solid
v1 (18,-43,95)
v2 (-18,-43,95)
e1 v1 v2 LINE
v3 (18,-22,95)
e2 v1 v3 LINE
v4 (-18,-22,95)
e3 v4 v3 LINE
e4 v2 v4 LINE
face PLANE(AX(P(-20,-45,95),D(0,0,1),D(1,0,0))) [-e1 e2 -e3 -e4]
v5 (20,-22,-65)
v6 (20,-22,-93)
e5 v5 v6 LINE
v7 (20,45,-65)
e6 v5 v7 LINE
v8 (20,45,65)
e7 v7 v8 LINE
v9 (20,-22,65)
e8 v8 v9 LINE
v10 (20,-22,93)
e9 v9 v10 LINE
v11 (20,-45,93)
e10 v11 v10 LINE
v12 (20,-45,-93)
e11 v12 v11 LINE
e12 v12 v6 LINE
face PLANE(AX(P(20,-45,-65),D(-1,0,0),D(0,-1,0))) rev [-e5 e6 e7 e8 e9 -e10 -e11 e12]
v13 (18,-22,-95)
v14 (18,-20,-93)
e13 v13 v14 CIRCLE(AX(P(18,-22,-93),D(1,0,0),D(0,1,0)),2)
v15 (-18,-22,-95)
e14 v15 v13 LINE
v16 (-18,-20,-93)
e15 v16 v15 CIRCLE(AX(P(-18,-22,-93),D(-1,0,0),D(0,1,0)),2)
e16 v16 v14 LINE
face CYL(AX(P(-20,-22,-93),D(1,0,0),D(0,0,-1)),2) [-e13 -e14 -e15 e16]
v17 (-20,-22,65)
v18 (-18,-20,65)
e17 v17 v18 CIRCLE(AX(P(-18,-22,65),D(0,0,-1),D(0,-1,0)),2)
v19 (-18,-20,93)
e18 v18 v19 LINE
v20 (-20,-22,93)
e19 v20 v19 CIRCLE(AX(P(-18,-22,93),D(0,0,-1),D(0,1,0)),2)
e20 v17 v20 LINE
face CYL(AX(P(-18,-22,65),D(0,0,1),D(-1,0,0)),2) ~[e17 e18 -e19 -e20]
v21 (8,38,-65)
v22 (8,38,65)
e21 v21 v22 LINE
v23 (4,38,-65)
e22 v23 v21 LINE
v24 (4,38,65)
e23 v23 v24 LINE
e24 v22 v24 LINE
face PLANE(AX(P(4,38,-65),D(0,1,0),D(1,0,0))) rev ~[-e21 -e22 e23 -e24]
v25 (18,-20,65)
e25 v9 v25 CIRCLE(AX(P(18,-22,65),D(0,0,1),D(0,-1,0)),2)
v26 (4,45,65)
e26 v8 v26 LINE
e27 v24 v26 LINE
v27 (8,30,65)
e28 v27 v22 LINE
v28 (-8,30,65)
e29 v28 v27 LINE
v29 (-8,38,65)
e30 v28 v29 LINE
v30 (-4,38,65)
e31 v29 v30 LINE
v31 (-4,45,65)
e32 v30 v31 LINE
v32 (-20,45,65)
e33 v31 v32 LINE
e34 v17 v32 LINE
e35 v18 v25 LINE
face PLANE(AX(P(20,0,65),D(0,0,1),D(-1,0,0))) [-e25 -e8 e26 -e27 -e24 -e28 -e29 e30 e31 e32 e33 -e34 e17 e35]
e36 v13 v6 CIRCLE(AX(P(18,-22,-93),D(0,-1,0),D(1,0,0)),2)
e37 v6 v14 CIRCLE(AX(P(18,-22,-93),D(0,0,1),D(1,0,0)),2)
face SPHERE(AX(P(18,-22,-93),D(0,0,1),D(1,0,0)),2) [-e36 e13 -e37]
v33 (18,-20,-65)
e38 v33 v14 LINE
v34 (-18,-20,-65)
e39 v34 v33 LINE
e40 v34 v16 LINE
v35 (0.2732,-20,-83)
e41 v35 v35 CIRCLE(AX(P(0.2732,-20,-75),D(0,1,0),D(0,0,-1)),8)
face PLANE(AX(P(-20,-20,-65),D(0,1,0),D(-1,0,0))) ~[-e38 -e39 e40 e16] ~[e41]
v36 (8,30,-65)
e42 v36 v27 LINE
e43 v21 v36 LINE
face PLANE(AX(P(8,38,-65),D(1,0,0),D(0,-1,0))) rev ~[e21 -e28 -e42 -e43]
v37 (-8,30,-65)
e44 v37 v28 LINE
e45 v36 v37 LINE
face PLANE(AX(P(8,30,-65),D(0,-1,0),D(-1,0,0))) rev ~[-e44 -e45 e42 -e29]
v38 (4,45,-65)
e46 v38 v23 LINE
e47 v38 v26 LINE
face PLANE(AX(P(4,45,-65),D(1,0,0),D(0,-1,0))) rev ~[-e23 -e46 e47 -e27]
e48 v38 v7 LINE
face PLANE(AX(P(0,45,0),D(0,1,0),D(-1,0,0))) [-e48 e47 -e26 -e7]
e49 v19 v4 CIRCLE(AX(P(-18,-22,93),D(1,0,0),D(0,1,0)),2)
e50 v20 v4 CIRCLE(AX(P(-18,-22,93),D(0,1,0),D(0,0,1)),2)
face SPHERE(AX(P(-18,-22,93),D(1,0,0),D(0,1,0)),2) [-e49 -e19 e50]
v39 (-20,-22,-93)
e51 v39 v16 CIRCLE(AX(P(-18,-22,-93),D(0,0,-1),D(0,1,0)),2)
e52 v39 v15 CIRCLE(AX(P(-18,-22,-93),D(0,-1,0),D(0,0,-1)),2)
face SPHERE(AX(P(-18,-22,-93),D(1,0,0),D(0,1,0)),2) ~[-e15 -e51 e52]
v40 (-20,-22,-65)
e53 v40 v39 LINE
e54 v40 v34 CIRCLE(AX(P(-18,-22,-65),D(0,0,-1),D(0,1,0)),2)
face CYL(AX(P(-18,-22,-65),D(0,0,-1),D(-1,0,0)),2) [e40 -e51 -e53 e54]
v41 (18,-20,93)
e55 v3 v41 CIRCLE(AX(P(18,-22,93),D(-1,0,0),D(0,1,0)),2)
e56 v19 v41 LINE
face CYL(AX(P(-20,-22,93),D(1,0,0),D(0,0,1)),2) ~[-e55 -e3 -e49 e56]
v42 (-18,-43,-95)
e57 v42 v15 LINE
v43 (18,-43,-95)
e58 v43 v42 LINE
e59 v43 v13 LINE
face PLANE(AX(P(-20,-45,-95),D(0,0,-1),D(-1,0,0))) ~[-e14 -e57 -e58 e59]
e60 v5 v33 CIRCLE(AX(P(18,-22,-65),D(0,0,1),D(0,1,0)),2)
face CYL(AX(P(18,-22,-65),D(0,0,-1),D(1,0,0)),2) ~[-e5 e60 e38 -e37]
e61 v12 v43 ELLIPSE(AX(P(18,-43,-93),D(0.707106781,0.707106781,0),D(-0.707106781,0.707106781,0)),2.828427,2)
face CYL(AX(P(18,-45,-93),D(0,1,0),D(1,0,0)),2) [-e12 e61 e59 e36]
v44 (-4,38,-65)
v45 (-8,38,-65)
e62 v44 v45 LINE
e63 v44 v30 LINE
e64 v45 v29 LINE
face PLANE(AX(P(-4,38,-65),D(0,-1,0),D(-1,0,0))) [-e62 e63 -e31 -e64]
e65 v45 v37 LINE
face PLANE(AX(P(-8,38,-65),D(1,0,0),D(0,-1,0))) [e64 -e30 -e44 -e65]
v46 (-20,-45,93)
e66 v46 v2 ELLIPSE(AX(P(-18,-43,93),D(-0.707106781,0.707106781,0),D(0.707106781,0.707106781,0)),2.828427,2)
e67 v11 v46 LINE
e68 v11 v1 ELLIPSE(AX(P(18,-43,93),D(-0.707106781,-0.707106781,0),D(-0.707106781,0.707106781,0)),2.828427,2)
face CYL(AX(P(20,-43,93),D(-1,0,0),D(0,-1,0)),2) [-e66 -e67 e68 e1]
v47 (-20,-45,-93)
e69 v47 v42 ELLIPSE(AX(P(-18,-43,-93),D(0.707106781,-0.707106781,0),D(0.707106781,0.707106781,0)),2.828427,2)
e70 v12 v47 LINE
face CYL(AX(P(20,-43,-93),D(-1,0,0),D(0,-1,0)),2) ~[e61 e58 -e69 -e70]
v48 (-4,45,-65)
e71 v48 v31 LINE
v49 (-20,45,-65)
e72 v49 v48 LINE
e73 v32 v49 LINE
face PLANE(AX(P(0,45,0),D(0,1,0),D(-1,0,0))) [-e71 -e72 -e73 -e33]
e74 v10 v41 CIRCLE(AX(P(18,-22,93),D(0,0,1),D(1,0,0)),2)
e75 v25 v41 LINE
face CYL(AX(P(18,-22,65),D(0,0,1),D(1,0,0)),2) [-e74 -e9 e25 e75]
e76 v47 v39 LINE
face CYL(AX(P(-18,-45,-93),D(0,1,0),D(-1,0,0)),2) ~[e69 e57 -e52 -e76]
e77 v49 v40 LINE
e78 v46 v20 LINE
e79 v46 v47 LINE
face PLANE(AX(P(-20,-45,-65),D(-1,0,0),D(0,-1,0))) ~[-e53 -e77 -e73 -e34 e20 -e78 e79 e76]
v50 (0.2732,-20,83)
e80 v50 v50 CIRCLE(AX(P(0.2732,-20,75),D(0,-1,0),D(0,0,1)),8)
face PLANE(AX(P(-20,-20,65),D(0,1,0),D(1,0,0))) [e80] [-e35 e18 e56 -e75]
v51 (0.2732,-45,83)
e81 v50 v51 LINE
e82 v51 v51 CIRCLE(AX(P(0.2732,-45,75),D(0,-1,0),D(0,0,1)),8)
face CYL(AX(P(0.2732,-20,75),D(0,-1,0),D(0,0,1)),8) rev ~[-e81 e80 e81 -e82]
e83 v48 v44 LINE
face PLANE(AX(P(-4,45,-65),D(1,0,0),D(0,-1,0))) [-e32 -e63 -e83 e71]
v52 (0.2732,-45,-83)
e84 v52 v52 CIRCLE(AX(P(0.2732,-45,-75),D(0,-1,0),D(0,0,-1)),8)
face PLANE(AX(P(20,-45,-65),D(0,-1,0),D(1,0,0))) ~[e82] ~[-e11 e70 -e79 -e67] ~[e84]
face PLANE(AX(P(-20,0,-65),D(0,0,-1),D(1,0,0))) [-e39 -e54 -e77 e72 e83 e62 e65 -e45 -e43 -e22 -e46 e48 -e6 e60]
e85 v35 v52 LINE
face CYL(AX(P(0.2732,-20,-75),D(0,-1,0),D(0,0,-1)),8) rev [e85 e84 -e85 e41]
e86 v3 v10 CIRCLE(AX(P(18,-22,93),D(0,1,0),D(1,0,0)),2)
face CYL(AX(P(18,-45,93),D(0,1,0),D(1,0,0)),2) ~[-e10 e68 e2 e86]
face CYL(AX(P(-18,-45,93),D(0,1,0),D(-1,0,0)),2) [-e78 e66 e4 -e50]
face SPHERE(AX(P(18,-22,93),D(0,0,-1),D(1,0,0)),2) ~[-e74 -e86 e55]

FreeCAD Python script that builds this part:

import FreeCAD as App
import Part
import Sketcher
from FreeCAD import Vector
Q = App.Units.Quantity


def edges_at(feature, points):
    """Names of the edges that pass closest to the given points."""
    edges = feature.Shape.Edges
    near = lambda p: min(range(len(edges)), key=lambda i: edges[i].distToShape(Part.Vertex(*p))[0])
    return sorted({f"Edge{near(p) + 1}" for p in points})

doc = App.newDocument("Part")
body = doc.addObject("PartDesign::Body", "Body")

sketch1 = doc.addObject("Sketcher::SketchObject", "Sketch")
body.addObject(sketch1)
sketch1.AttachmentSupport = (doc.XZ_Plane, [""])
sketch1.MapMode = "FlatFace"
sketch1.addGeometry(Part.LineSegment(Vector(-20, 65, 0), Vector(20, 65, 0)), False)
sketch1.addGeometry(Part.LineSegment(Vector(20, 65, 0), Vector(20, -65, 0)), False)
sketch1.addGeometry(Part.LineSegment(Vector(20, -65, 0), Vector(-20, -65, 0)), False)
sketch1.addGeometry(Part.LineSegment(Vector(-20, -65, 0), Vector(-20, 65, 0)), False)
sketch1.addConstraint(Sketcher.Constraint("Coincident", 0, 2, 1, 1))
sketch1.addConstraint(Sketcher.Constraint("Coincident", 1, 2, 2, 1))
sketch1.addConstraint(Sketcher.Constraint("Coincident", 2, 2, 3, 1))
sketch1.addConstraint(Sketcher.Constraint("Coincident", 3, 2, 0, 1))
sketch1.addConstraint(Sketcher.Constraint("Horizontal", 0))
sketch1.addConstraint(Sketcher.Constraint("Vertical", 1))
sketch1.addConstraint(Sketcher.Constraint("Horizontal", 2))
sketch1.addConstraint(Sketcher.Constraint("Vertical", 3))
sketch1.addConstraint(Sketcher.Constraint("Symmetric", 0, 2, 2, 2, -1, 1))
sketch1.addConstraint(Sketcher.Constraint("DistanceX", 0, 1, 0, 2, Q("40 mm")))
sketch1.addConstraint(Sketcher.Constraint("DistanceY", 1, 2, 1, 1, Q("130 mm")))
pad1 = doc.addObject("PartDesign::Pad", "Pad")
body.addObject(pad1)
pad1.Profile = sketch1
pad1.Length = 90
pad1.Midplane = True

sketch2 = doc.addObject("Sketcher::SketchObject", "Sketch001")
body.addObject(sketch2)
sketch2.AttachmentSupport = (doc.XY_Plane, [""])
sketch2.MapMode = "FlatFace"
sketch2.AttachmentOffset = App.Placement(Vector(0, 0, -65), App.Rotation())
sketch2.addGeometry(Part.LineSegment(Vector(4, 45, 0), Vector(4, 38, 0)), False)
sketch2.addGeometry(Part.LineSegment(Vector(4, 38, 0), Vector(8, 38, 0)), False)
sketch2.addGeometry(Part.LineSegment(Vector(8, 38, 0), Vector(8, 30, 0)), False)
sketch2.addGeometry(Part.LineSegment(Vector(8, 30, 0), Vector(-8, 30, 0)), False)
sketch2.addGeometry(Part.LineSegment(Vector(-8, 30, 0), Vector(-8, 38, 0)), False)
sketch2.addGeometry(Part.LineSegment(Vector(-8, 38, 0), Vector(-4, 38, 0)), False)
sketch2.addGeometry(Part.LineSegment(Vector(-4, 38, 0), Vector(-4, 45, 0)), False)
sketch2.addGeometry(Part.LineSegment(Vector(-4, 45, 0), Vector(4, 45, 0)), False)
sketch2.addConstraint(Sketcher.Constraint("Coincident", 0, 2, 1, 1))
sketch2.addConstraint(Sketcher.Constraint("Coincident", 1, 2, 2, 1))
sketch2.addConstraint(Sketcher.Constraint("Coincident", 2, 2, 3, 1))
sketch2.addConstraint(Sketcher.Constraint("Coincident", 3, 2, 4, 1))
sketch2.addConstraint(Sketcher.Constraint("Coincident", 4, 2, 5, 1))
sketch2.addConstraint(Sketcher.Constraint("Coincident", 5, 2, 6, 1))
sketch2.addConstraint(Sketcher.Constraint("Coincident", 6, 2, 7, 1))
sketch2.addConstraint(Sketcher.Constraint("Coincident", 7, 2, 0, 1))
sketch2.addConstraint(Sketcher.Constraint("Vertical", 0))
sketch2.addConstraint(Sketcher.Constraint("Horizontal", 1))
sketch2.addConstraint(Sketcher.Constraint("Vertical", 2))
sketch2.addConstraint(Sketcher.Constraint("Horizontal", 3))
sketch2.addConstraint(Sketcher.Constraint("Vertical", 4))
sketch2.addConstraint(Sketcher.Constraint("Horizontal", 5))
sketch2.addConstraint(Sketcher.Constraint("Vertical", 6))
sketch2.addConstraint(Sketcher.Constraint("Horizontal", 7))
sketch2.addConstraint(Sketcher.Constraint("Symmetric", 1, 2, 4, 2, -2))
sketch2.addConstraint(Sketcher.Constraint("Equal", 1, 5))
sketch2.addConstraint(Sketcher.Constraint("Equal", 7, 2))
sketch2.addConstraint(Sketcher.Constraint("DistanceX", 1, 1, 1, 2, Q("4 mm")))
sketch2.addConstraint(Sketcher.Constraint("DistanceX", 7, 1, 7, 2, Q("8 mm")))
sketch2.addConstraint(Sketcher.Constraint("DistanceY", 0, 2, 0, 1, Q("7 mm")))
sketch2.addConstraint(Sketcher.Constraint("DistanceY", -1, 1, 0, 2, Q("38 mm")))
pocket1 = doc.addObject("PartDesign::Pocket", "Pocket")
body.addObject(pocket1)
pocket1.Profile = sketch2
pocket1.Type = "ThroughAll"
pocket1.Reversed = True

sketch3 = doc.addObject("Sketcher::SketchObject", "Sketch002")
body.addObject(sketch3)
sketch3.AttachmentSupport = (doc.XY_Plane, [""])
sketch3.MapMode = "FlatFace"
sketch3.AttachmentOffset = App.Placement(Vector(0, 0, 65), App.Rotation())
sketch3.addGeometry(Part.LineSegment(Vector(-20, -45, 0), Vector(20, -45, 0)), False)
sketch3.addGeometry(Part.LineSegment(Vector(20, -45, 0), Vector(20, -20, 0)), False)
sketch3.addGeometry(Part.LineSegment(Vector(20, -20, 0), Vector(-20, -20, 0)), False)
sketch3.addGeometry(Part.LineSegment(Vector(-20, -20, 0), Vector(-20, -45, 0)), False)
sketch3.addConstraint(Sketcher.Constraint("Coincident", 0, 2, 1, 1))
sketch3.addConstraint(Sketcher.Constraint("Coincident", 1, 2, 2, 1))
sketch3.addConstraint(Sketcher.Constraint("Coincident", 2, 2, 3, 1))
sketch3.addConstraint(Sketcher.Constraint("Coincident", 3, 2, 0, 1))
sketch3.addConstraint(Sketcher.Constraint("Horizontal", 0))
sketch3.addConstraint(Sketcher.Constraint("Vertical", 1))
sketch3.addConstraint(Sketcher.Constraint("Horizontal", 2))
sketch3.addConstraint(Sketcher.Constraint("Vertical", 3))
sketch3.addConstraint(Sketcher.Constraint("DistanceY", 1, 1, 1, 2, Q("25 mm")))
sketch3.addConstraint(Sketcher.Constraint("DistanceX", 0, 1, 0, 2, Q("40 mm")))
sketch3.addConstraint(Sketcher.Constraint("DistanceX", -1, 1, 0, 2, Q("20 mm")))
sketch3.addConstraint(Sketcher.Constraint("DistanceY", 0, 2, -1, 1, Q("45 mm")))
pad2 = doc.addObject("PartDesign::Pad", "Pad001")
body.addObject(pad2)
pad2.Profile = sketch3
pad2.Length = 30
doc.recompute()

fillet = doc.addObject("PartDesign::Fillet", "Fillet")
body.addObject(fillet)
fillet.Base = (pad2, edges_at(pad2, [
    (20, -20, 80),
    (20, -32.5, 95),
    (0, -20, 95),
    (-20, -20, 80),
    (-20, -32.5, 95),
    (0, -45, 95),
]))
fillet.Radius = 2

sketch4 = doc.addObject("Sketcher::SketchObject", "Sketch003")
body.addObject(sketch4)
sketch4.AttachmentSupport = (doc.XZ_Plane, [""])
sketch4.MapMode = "FlatFace"
sketch4.AttachmentOffset = App.Placement(Vector(0, 0, 20), App.Rotation())
sketch4.addGeometry(Part.Circle(Vector(0, 75, 0), Vector(0, 0, 1), 8), False)
sketch4.addConstraint(Sketcher.Constraint("Diameter", 0, Q("16 mm")))
sketch4.addConstraint(Sketcher.Constraint("DistanceY", -1, 1, 0, 3, Q("75 mm")))
sketch4.addConstraint(Sketcher.Constraint("DistanceX", -1, 1, 0, 3, Q("0.2732 mm")))
doc.recompute()
hole = doc.addObject("PartDesign::Hole", "Hole")
body.addObject(hole)
hole.Profile = sketch4
hole.ThreadType = "None"
hole.Diameter = 16
hole.DepthType = "ThroughAll"
hole.Reversed = True
doc.recompute()

mirrored = doc.addObject("PartDesign::Mirrored", "Mirrored")
body.addObject(mirrored)
mirrored.Originals = [pad2, fillet, hole]
mirrored.MirrorPlane = (doc.XY_Plane, [""])
body.Tip = mirrored

doc.recompute()
